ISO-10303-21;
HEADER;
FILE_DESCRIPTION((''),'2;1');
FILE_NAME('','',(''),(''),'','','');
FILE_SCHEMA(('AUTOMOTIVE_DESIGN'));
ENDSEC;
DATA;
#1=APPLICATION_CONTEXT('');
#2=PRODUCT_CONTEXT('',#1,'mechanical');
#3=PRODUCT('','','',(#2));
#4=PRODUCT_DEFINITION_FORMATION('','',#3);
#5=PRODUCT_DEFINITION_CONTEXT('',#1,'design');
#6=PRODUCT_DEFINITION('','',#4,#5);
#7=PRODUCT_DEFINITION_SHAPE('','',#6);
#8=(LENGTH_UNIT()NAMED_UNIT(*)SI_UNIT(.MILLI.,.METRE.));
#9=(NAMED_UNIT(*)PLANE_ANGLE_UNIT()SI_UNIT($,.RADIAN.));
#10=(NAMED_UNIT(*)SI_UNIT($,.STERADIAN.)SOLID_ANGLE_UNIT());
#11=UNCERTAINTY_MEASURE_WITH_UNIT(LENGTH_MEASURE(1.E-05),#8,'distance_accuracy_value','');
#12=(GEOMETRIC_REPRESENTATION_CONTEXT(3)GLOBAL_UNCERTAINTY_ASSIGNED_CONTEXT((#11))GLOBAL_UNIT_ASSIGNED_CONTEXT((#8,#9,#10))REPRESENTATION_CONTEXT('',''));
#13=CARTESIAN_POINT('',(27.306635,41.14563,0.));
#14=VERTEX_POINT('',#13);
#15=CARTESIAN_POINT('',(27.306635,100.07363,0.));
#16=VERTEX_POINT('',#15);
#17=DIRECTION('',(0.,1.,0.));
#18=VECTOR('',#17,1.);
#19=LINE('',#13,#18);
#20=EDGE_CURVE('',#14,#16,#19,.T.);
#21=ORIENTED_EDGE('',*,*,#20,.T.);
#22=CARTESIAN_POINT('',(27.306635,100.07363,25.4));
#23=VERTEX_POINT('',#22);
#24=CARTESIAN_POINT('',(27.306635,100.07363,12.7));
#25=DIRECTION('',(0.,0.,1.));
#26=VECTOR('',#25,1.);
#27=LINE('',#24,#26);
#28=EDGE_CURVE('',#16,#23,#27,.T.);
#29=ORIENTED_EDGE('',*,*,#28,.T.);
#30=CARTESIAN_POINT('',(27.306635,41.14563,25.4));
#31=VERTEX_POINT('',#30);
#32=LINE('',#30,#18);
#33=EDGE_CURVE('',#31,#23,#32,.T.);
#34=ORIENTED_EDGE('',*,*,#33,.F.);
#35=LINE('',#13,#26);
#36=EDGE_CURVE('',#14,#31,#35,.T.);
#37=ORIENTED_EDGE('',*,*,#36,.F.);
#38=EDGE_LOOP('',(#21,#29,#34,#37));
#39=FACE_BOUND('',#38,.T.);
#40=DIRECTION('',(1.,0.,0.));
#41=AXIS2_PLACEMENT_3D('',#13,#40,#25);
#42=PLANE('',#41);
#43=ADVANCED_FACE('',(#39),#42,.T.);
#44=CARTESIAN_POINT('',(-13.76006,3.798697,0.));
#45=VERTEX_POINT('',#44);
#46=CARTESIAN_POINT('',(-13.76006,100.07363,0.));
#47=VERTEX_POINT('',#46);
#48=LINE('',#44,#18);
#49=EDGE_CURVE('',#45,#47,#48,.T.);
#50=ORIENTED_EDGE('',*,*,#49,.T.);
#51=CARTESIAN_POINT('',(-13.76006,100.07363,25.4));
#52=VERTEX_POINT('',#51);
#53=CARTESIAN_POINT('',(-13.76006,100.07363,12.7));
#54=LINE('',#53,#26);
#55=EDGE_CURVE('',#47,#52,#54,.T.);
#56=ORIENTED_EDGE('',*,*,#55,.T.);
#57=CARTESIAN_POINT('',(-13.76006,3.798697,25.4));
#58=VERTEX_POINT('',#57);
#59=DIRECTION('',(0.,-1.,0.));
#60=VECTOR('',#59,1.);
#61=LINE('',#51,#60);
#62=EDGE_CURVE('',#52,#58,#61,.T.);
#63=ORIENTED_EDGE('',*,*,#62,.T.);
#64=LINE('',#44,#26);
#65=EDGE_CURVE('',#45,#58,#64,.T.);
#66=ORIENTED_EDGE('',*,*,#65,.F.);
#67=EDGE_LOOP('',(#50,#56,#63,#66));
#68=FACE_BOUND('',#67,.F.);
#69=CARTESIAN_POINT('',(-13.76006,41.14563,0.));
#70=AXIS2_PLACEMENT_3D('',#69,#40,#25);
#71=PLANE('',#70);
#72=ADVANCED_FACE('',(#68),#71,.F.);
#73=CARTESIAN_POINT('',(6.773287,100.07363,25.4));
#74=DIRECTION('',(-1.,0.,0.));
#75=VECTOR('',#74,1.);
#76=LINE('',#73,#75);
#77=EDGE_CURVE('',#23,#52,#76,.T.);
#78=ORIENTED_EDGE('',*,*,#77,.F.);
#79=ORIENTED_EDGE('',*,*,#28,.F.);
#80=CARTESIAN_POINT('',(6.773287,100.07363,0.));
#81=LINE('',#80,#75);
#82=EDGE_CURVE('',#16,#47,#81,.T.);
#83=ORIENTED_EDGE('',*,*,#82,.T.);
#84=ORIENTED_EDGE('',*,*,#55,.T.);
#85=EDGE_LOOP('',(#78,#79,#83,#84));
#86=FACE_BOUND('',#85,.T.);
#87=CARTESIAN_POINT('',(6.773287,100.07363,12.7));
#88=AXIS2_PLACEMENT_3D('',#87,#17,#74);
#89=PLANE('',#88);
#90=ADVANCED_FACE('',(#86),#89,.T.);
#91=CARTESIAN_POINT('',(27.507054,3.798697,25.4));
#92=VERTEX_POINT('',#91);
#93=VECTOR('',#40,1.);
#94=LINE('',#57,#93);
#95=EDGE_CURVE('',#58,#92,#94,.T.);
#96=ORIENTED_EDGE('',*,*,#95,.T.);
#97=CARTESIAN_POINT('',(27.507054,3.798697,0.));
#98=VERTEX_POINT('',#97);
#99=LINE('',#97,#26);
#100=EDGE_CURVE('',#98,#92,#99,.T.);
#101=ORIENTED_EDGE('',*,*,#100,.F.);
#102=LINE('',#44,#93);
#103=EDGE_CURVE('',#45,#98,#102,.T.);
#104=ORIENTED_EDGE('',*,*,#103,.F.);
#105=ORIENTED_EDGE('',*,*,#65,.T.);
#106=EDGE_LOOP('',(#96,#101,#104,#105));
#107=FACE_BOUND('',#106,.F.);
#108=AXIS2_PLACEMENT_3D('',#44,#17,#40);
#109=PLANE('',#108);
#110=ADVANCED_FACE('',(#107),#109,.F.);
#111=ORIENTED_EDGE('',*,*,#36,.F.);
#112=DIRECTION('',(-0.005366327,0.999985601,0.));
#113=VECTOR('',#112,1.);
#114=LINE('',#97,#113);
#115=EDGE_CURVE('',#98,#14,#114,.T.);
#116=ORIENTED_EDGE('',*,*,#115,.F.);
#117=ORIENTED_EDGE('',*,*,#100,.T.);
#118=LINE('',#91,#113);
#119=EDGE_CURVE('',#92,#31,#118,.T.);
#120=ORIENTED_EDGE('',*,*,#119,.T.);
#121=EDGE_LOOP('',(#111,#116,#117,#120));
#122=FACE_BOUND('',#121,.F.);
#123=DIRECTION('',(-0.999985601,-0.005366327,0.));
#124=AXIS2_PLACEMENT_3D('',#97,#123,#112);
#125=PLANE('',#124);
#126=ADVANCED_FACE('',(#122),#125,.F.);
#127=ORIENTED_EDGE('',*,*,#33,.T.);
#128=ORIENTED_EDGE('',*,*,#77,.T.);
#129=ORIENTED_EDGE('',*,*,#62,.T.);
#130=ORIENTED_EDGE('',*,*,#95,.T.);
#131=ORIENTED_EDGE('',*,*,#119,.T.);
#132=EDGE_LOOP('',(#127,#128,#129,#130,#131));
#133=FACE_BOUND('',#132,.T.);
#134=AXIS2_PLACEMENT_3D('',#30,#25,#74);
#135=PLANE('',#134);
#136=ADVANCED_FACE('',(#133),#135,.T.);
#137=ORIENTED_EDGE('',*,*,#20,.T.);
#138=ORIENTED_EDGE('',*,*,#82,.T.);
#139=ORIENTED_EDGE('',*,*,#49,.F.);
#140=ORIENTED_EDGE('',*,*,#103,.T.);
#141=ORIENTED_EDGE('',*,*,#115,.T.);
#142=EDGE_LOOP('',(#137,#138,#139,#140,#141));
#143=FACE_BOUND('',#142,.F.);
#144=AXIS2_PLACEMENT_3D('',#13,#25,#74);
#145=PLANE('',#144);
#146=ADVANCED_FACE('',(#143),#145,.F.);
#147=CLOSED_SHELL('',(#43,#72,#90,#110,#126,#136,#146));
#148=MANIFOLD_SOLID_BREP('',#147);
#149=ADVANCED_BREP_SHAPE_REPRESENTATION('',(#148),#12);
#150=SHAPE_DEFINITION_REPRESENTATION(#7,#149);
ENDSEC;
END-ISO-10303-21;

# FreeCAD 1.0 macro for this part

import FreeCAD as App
import Part
import Sketcher
Q = App.Units.Quantity


def add_polygon(sketch, points):
    """Adds a closed chain of lines whose ends are joined by coincident constraints."""
    first, n = sketch.GeometryCount, len(points)
    for a, b in zip(points, points[1:] + points[:1]):
        sketch.addGeometry(Part.LineSegment(App.Vector(*a, 0), App.Vector(*b, 0)), False)
    for i in range(n):
        sketch.addConstraint(Sketcher.Constraint("Coincident", first + i, 2, first + (i + 1) % n, 1))

doc = App.newDocument("Part")
body = doc.addObject("PartDesign::Body", "Body")

# Sketch on XY plane
sketch1 = doc.addObject("Sketcher::SketchObject", "Sketch")
body.addObject(sketch1)
sketch1.AttachmentSupport = (doc.XY_Plane, [""])
sketch1.MapMode = "FlatFace"
add_polygon(sketch1, [(28, 4), (27, 41), (-14, 41), (-14, 4)])  # lines 0-3
sketch1.addConstraint([
    Sketcher.Constraint("Horizontal", 1),
    Sketcher.Constraint("Vertical", 2),
    Sketcher.Constraint("Horizontal", 3),
    Sketcher.Constraint("Distance", 0, Q("37.347471 mm")),
    Sketcher.Constraint("DistanceX", 1, 2, 1, 1, Q("41.066695 mm")),
    Sketcher.Constraint("DistanceX", 3, 1, 3, 2, Q("41.267114 mm")),
    Sketcher.Constraint("DistanceY", -1, 1, 0, 2, Q("41.14563 mm")),
    Sketcher.Constraint("DistanceX", 1, 2, -1, 1, Q("13.76006 mm")),
])
pad1 = doc.addObject("PartDesign::Pad", "Pad")
body.addObject(pad1)
pad1.Profile = sketch1
pad1.Length = Q("1 in")

# Sketch on XZ plane
sketch2 = doc.addObject("Sketcher::SketchObject", "Sketch001")
body.addObject(sketch2)
sketch2.AttachmentSupport = (doc.XZ_Plane, [""])
sketch2.MapMode = "FlatFace"
sketch2.AttachmentOffset = App.Placement(App.Vector(0, 0, -41.14563), App.Rotation())
add_polygon(sketch2, [(27, 25), (27, 0), (-14, 0), (-14, 25)])  # lines 0-3
sketch2.addConstraint([
    Sketcher.Constraint("Vertical", 0),
    Sketcher.Constraint("Horizontal", 1),
    Sketcher.Constraint("Vertical", 2),
    Sketcher.Constraint("Horizontal", 3),
    Sketcher.Constraint("PointOnObject", 0, 2, -1),
    Sketcher.Constraint("DistanceY", 0, 2, 0, 1, Q("1 in")),
    Sketcher.Constraint("DistanceX", 1, 2, 1, 1, Q("41.066695 mm")),
    Sketcher.Constraint("DistanceX", 1, 2, -1, 1, Q("13.76006 mm")),
])
pad2 = doc.addObject("PartDesign::Pad", "Pad001")
body.addObject(pad2)
pad2.Profile = sketch2
pad2.Length = Q("2.32 in")
pad2.Reversed = True

doc.recompute()
